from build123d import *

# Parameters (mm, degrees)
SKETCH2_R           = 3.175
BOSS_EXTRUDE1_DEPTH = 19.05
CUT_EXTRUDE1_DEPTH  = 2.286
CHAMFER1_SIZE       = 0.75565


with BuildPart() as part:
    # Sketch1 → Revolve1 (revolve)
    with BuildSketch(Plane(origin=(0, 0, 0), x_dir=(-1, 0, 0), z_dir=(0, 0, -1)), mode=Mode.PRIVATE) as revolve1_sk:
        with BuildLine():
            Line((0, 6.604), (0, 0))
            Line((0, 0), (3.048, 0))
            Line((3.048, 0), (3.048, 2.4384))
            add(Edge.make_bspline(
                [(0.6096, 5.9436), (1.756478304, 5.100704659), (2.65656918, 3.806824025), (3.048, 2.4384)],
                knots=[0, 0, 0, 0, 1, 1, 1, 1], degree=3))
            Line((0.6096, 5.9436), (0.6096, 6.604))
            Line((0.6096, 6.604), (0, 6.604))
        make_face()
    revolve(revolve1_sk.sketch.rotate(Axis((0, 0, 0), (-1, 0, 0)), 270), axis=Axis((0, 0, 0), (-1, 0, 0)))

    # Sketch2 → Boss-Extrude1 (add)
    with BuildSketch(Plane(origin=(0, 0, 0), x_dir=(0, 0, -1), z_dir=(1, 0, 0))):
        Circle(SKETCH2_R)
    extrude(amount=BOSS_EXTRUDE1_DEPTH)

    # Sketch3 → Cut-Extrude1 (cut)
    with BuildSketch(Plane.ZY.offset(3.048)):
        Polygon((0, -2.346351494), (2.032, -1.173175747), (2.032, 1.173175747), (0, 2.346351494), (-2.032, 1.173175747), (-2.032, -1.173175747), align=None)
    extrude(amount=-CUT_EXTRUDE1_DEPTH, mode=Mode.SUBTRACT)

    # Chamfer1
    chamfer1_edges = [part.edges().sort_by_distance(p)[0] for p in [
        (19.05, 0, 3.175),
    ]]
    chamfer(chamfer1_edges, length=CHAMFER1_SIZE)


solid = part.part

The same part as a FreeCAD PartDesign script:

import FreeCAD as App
import Part
import Sketcher
from FreeCAD import Vector
Q = App.Units.Quantity


def edges_at(feature, points):
    """Names of the edges that pass closest to the given points."""
    edges = feature.Shape.Edges
    near = lambda p: min(range(len(edges)), key=lambda i: edges[i].distToShape(Part.Vertex(*p))[0])
    return sorted({f"Edge{near(p) + 1}" for p in points})

doc = App.newDocument("Part")
body = doc.addObject("PartDesign::Body", "Body")

sketch1 = body.newObject("Sketcher::SketchObject", "Sketch")
sketch1.AttachmentSupport = (doc.getObject("XY_Plane"), [""])
sketch1.MapMode = "FlatFace"
sketch1.addGeometry([
    Part.LineSegment(Vector(0, 6.604, 0), Vector(0, 0, 0)),
    Part.LineSegment(Vector(0, 0, 0), Vector(-3.048, 0, 0)),
    Part.LineSegment(Vector(-3.048, 0, 0), Vector(-3.048, 2.4384, 0)),
    Part.BSplineCurve([Vector(-0.6096, 5.9436, 0), Vector(-1.756478, 5.100705, 0), Vector(-2.656569, 3.806824, 0), Vector(-3.048, 2.4384, 0)], [4, 4], [0, 1], False, 3, [1, 1, 1, 1], False),
    Part.LineSegment(Vector(-0.6096, 5.9436, 0), Vector(-0.6096, 6.604, 0)),
    Part.LineSegment(Vector(-0.6096, 6.604, 0), Vector(0, 6.604, 0)),
], False)
sketch1.addConstraint([
    Sketcher.Constraint("Block", 3),
    Sketcher.Constraint("Coincident", 0, 2, 1, 1),
    Sketcher.Constraint("Coincident", 1, 2, 2, 1),
    Sketcher.Constraint("Coincident", 2, 2, 3, 2),
    Sketcher.Constraint("Coincident", 3, 1, 4, 1),
    Sketcher.Constraint("Coincident", 4, 2, 5, 1),
    Sketcher.Constraint("Coincident", 5, 2, 0, 1),
    Sketcher.Constraint("Vertical", 0),
    Sketcher.Constraint("Horizontal", 1),
    Sketcher.Constraint("Vertical", 2),
    Sketcher.Constraint("Vertical", 4),
    Sketcher.Constraint("Horizontal", 5),
    Sketcher.Constraint("Coincident", 0, 2, -1, 1),
    Sketcher.Constraint("DistanceY", 0, 2, 0, 1, Q("0.26 in")),
])
revolution = body.newObject("PartDesign::Revolution", "Revolution")
revolution.Profile = sketch1
revolution.ReferenceAxis = (sketch1, ["H_Axis"])
revolution.Angle = 360

sketch2 = body.newObject("Sketcher::SketchObject", "Sketch001")
sketch2.AttachmentSupport = (doc.getObject("YZ_Plane"), [""])
sketch2.MapMode = "FlatFace"
sketch2.addGeometry(Part.Circle(Vector(0, 0, 0), Vector(0, 0, 1), 3.2), False)
sketch2.addConstraint([
    Sketcher.Constraint("Coincident", 0, 3, -1, 1),
    Sketcher.Constraint("Diameter", 0, Q("0.25 in")),
])
pad1 = body.newObject("PartDesign::Pad", "Pad")
pad1.Profile = sketch2
pad1.Length = Q("0.75 in")

sketch3 = body.newObject("Sketcher::SketchObject", "Sketch002")
sketch3.AttachmentSupport = (doc.getObject("YZ_Plane"), [""])
sketch3.MapMode = "FlatFace"
sketch3.AttachmentOffset = App.Placement(Vector(0, 0, -0.12 * 25.4), App.Rotation())
sketch3.addGeometry([
    Part.LineSegment(Vector(-2.3, 0, 0), Vector(-1.2, 2, 0)),
    Part.LineSegment(Vector(-1.2, 2, 0), Vector(1.2, 2, 0)),
    Part.LineSegment(Vector(1.2, 2, 0), Vector(2.3, 0, 0)),
    Part.LineSegment(Vector(2.3, 0, 0), Vector(1.2, -2, 0)),
    Part.LineSegment(Vector(1.2, -2, 0), Vector(-1.2, -2, 0)),
    Part.LineSegment(Vector(-1.2, -2, 0), Vector(-2.3, 0, 0)),
], False)
sketch3.addConstraint([
    Sketcher.Constraint("Coincident", 0, 2, 1, 1),
    Sketcher.Constraint("Coincident", 1, 2, 2, 1),
    Sketcher.Constraint("Coincident", 2, 2, 3, 1),
    Sketcher.Constraint("Coincident", 3, 2, 4, 1),
    Sketcher.Constraint("Coincident", 4, 2, 5, 1),
    Sketcher.Constraint("Coincident", 5, 2, 0, 1),
    Sketcher.Constraint("Horizontal", 1),
    Sketcher.Constraint("Horizontal", 4),
    Sketcher.Constraint("Symmetric", 0, 2, 3, 2, -1, 1),
    Sketcher.Constraint("Symmetric", 2, 2, 5, 2, -1, 1),
    Sketcher.Constraint("PointOnObject", 2, 2, -1),
    Sketcher.Constraint("Parallel", 2, 5),
    Sketcher.Constraint("Vertical", 1, 2, 3, 2),
    Sketcher.Constraint("Angle", 0, Q("60 deg")),
    Sketcher.Constraint("DistanceY", -1, 1, 0, 2, Q("0.08 in")),
    Sketcher.Constraint("DistanceX", 1, 1, 1, 2, Q("2.346351 mm")),
])
pocket1 = body.newObject("PartDesign::Pocket", "Pocket")
pocket1.Profile = sketch3
pocket1.Length = Q("0.09 in")
pocket1.Reversed = True
doc.recompute()

chamfer = body.newObject("PartDesign::Chamfer", "Chamfer")
chamfer.Base = (pocket1, edges_at(pocket1, [(19.05, 0, 3.175)]))
chamfer.Size = 0.75565

doc.recompute()
